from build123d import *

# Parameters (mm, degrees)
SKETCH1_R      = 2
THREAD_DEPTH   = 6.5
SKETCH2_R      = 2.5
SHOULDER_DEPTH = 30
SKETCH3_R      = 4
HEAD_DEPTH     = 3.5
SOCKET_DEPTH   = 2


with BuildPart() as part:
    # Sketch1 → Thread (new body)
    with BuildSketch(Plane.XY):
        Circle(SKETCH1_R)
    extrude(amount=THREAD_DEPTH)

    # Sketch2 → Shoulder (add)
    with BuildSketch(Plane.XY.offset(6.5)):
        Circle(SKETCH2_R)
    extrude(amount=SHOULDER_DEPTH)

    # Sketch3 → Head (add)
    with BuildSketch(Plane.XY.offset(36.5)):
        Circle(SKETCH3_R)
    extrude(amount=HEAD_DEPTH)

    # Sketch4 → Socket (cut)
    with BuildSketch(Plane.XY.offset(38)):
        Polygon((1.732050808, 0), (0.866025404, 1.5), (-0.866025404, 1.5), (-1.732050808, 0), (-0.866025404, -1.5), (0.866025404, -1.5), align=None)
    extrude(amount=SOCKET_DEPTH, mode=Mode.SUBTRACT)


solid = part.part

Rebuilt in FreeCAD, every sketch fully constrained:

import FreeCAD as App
import Part
import Sketcher
from FreeCAD import Vector
Q = App.Units.Quantity


def add_polygon(sketch, points):
    """Adds a closed chain of lines whose ends are joined by coincident constraints."""
    first, n = sketch.GeometryCount, len(points)
    for a, b in zip(points, points[1:] + points[:1]):
        sketch.addGeometry(Part.LineSegment(App.Vector(*a, 0), App.Vector(*b, 0)), False)
    for i in range(n):
        sketch.addConstraint(Sketcher.Constraint("Coincident", first + i, 2, first + (i + 1) % n, 1))

doc = App.newDocument("Part")
params = doc.addObject("Spreadsheet::Sheet", "Params")
for row, (alias, value) in enumerate([
    ("sketch1_diameter", "4 mm"),
    ("pad1_length", "6.5 mm"),
    ("sketch2_diameter", "5 mm"),
    ("pad2_length", "30 mm"),
    ("sketch3_diameter", "8 mm"),
    ("pad3_length", "3.5 mm"),
    ("pocket1_length", "2 mm"),
], start=1):
    params.set(f"A{row}", alias)
    params.set(f"B{row}", "=" + value)
    params.setAlias(f"B{row}", alias)

body = doc.addObject("PartDesign::Body", "Body")

sketch1 = body.newObject("Sketcher::SketchObject", "Sketch")
sketch1.AttachmentSupport = (doc.getObject("XY_Plane"), [""])
sketch1.MapMode = "FlatFace"
sketch1.addGeometry(Part.Circle(Vector(0, 0, 0), Vector(0, 0, 1), 2), False)
sketch1.addConstraint([
    Sketcher.Constraint("Coincident", 0, 3, -1, 1),
    Sketcher.Constraint("Diameter", 0, Q("4 mm")),
])
sketch1.setExpression("Constraints[1]", "Params.sketch1_diameter")
pad1 = body.newObject("PartDesign::Pad", "Pad")
pad1.Profile = sketch1
pad1.setExpression("Length", "Params.pad1_length")

sketch2 = body.newObject("Sketcher::SketchObject", "Sketch001")
sketch2.AttachmentSupport = (doc.getObject("XY_Plane"), [""])
sketch2.MapMode = "FlatFace"
sketch2.AttachmentOffset = App.Placement(Vector(0, 0, 6.5), App.Rotation())
sketch2.addGeometry(Part.Circle(Vector(0, 0, 0), Vector(0, 0, 1), 2.5), False)
sketch2.addConstraint([
    Sketcher.Constraint("Coincident", 0, 3, -1, 1),
    Sketcher.Constraint("Diameter", 0, Q("5 mm")),
])
sketch2.setExpression("Constraints[1]", "Params.sketch2_diameter")
pad2 = body.newObject("PartDesign::Pad", "Pad001")
pad2.Profile = sketch2
pad2.setExpression("Length", "Params.pad2_length")

sketch3 = body.newObject("Sketcher::SketchObject", "Sketch002")
sketch3.AttachmentSupport = (doc.getObject("XY_Plane"), [""])
sketch3.MapMode = "FlatFace"
sketch3.AttachmentOffset = App.Placement(Vector(0, 0, 36.5), App.Rotation())
sketch3.addGeometry(Part.Circle(Vector(0, 0, 0), Vector(0, 0, 1), 4), False)
sketch3.addConstraint([
    Sketcher.Constraint("Coincident", 0, 3, -1, 1),
    Sketcher.Constraint("Diameter", 0, Q("8 mm")),
])
sketch3.setExpression("Constraints[1]", "Params.sketch3_diameter")
pad3 = body.newObject("PartDesign::Pad", "Pad002")
pad3.Profile = sketch3
pad3.setExpression("Length", "Params.pad3_length")

sketch4 = body.newObject("Sketcher::SketchObject", "Sketch003")
sketch4.AttachmentSupport = (doc.getObject("XY_Plane"), [""])
sketch4.MapMode = "FlatFace"
sketch4.AttachmentOffset = App.Placement(Vector(0, 0, 38), App.Rotation())
add_polygon(sketch4, [(1.7, 0), (0.9, 1.5), (-0.9, 1.5), (-1.7, 0), (-0.9, -1.5), (0.9, -1.5)])
sketch4.addConstraint([
    Sketcher.Constraint("Horizontal", 1),
    Sketcher.Constraint("Horizontal", 4),
    Sketcher.Constraint("Symmetric", 0, 2, 3, 2, -1, 1),
    Sketcher.Constraint("Symmetric", 2, 2, 5, 2, -1, 1),
    Sketcher.Constraint("PointOnObject", 2, 2, -1),
    Sketcher.Constraint("Parallel", 2, 5),
    Sketcher.Constraint("Vertical", 1, 2, 3, 2),
    Sketcher.Constraint("Angle", 0, Q("120 deg")),
    Sketcher.Constraint("DistanceY", 3, 2, 1, 2, Q("3 mm")),
    Sketcher.Constraint("DistanceX", 1, 2, 1, 1, Q("1.732051 mm")),
])
pocket1 = body.newObject("PartDesign::Pocket", "Pocket")
pocket1.Profile = sketch4
pocket1.setExpression("Length", "Params.pocket1_length")
pocket1.Reversed = True

doc.recompute()
